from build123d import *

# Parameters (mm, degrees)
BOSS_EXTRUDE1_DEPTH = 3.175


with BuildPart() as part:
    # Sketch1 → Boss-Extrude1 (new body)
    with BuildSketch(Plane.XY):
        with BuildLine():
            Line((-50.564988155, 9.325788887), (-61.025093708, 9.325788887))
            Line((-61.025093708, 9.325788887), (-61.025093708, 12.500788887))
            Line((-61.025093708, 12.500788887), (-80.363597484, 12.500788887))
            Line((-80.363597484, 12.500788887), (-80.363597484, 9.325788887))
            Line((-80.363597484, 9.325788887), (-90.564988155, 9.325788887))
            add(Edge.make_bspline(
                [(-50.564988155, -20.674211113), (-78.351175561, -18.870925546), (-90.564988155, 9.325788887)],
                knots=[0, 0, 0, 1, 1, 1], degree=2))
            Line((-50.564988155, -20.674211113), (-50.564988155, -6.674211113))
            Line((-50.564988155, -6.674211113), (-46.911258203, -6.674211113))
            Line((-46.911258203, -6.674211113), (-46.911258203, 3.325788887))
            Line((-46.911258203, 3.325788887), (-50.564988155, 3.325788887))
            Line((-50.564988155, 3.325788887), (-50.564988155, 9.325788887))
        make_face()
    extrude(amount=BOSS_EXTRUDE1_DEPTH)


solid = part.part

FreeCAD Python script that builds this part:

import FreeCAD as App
import Part
import Sketcher
from FreeCAD import Vector
Q = App.Units.Quantity

doc = App.newDocument("Part")
body = doc.addObject("PartDesign::Body", "Body")

# Sketch on XY plane
sketch1 = body.newObject("Sketcher::SketchObject", "Sketch")
sketch1.AttachmentSupport = (doc.getObject("XY_Plane"), [""])
sketch1.MapMode = "FlatFace"
sketch1.addGeometry([
    Part.LineSegment(Vector(-50.564988, 9.325789, 0), Vector(-61.025094, 9.325789, 0)),  # 0
    Part.LineSegment(Vector(-61.025094, 9.325789, 0), Vector(-61.025094, 12.500789, 0)),  # 1
    Part.LineSegment(Vector(-61.025094, 12.500789, 0), Vector(-80.363597, 12.500789, 0)),  # 2
    Part.LineSegment(Vector(-80.363597, 12.500789, 0), Vector(-80.363597, 9.325789, 0)),  # 3
    Part.LineSegment(Vector(-80.363597, 9.325789, 0), Vector(-90.564988, 9.325789, 0)),  # 4
    Part.BSplineCurve([Vector(-50.564988, -20.674211, 0), Vector(-78.351176, -18.870926, 0), Vector(-90.564988, 9.325789, 0)], [3, 3], [0, 1], False, 2, [1, 1, 1], False),  # 5
    Part.LineSegment(Vector(-50.564988, -20.674211, 0), Vector(-50.564988, -6.674211, 0)),  # 6
    Part.LineSegment(Vector(-50.564988, -6.674211, 0), Vector(-46.911258, -6.674211, 0)),  # 7
    Part.LineSegment(Vector(-46.911258, -6.674211, 0), Vector(-46.911258, 3.325789, 0)),  # 8
    Part.LineSegment(Vector(-46.911258, 3.325789, 0), Vector(-50.564988, 3.325789, 0)),  # 9
    Part.LineSegment(Vector(-50.564988, 3.325789, 0), Vector(-50.564988, 9.325789, 0)),  # 10
], False)
sketch1.addConstraint([
    Sketcher.Constraint("Block", 5),
    Sketcher.Constraint("Coincident", 0, 2, 1, 1),
    Sketcher.Constraint("Coincident", 1, 2, 2, 1),
    Sketcher.Constraint("Coincident", 2, 2, 3, 1),
    Sketcher.Constraint("Coincident", 3, 2, 4, 1),
    Sketcher.Constraint("Coincident", 4, 2, 5, 2),
    Sketcher.Constraint("Coincident", 5, 1, 6, 1),
    Sketcher.Constraint("Coincident", 6, 2, 7, 1),
    Sketcher.Constraint("Coincident", 7, 2, 8, 1),
    Sketcher.Constraint("Coincident", 8, 2, 9, 1),
    Sketcher.Constraint("Coincident", 9, 2, 10, 1),
    Sketcher.Constraint("Coincident", 10, 2, 0, 1),
    Sketcher.Constraint("Horizontal", 0),
    Sketcher.Constraint("Vertical", 1),
    Sketcher.Constraint("Horizontal", 2),
    Sketcher.Constraint("Vertical", 3),
    Sketcher.Constraint("Horizontal", 4),
    Sketcher.Constraint("Vertical", 6),
    Sketcher.Constraint("Horizontal", 7),
    Sketcher.Constraint("Vertical", 8),
    Sketcher.Constraint("Horizontal", 9),
    Sketcher.Constraint("Vertical", 10),
    Sketcher.Constraint("Horizontal", 0, 2, 3, 2),
    Sketcher.Constraint("Vertical", 6, 2, 9, 2),
    Sketcher.Constraint("DistanceY", 6, 1, 6, 2, Q("14 mm")),
    Sketcher.Constraint("DistanceY", 8, 1, 8, 2, Q("10 mm")),
    Sketcher.Constraint("DistanceY", 1, 1, 1, 2, Q("3.175 mm")),
    Sketcher.Constraint("DistanceX", 4, 2, 4, 1, Q("10.201391 mm")),
    Sketcher.Constraint("DistanceX", 7, 1, 7, 2, Q("3.65373 mm")),
    Sketcher.Constraint("DistanceX", 0, 2, 0, 1, Q("10.460106 mm")),
])
pad1 = body.newObject("PartDesign::Pad", "Pad")
pad1.Profile = sketch1
pad1.Length = 3.175

doc.recompute()
